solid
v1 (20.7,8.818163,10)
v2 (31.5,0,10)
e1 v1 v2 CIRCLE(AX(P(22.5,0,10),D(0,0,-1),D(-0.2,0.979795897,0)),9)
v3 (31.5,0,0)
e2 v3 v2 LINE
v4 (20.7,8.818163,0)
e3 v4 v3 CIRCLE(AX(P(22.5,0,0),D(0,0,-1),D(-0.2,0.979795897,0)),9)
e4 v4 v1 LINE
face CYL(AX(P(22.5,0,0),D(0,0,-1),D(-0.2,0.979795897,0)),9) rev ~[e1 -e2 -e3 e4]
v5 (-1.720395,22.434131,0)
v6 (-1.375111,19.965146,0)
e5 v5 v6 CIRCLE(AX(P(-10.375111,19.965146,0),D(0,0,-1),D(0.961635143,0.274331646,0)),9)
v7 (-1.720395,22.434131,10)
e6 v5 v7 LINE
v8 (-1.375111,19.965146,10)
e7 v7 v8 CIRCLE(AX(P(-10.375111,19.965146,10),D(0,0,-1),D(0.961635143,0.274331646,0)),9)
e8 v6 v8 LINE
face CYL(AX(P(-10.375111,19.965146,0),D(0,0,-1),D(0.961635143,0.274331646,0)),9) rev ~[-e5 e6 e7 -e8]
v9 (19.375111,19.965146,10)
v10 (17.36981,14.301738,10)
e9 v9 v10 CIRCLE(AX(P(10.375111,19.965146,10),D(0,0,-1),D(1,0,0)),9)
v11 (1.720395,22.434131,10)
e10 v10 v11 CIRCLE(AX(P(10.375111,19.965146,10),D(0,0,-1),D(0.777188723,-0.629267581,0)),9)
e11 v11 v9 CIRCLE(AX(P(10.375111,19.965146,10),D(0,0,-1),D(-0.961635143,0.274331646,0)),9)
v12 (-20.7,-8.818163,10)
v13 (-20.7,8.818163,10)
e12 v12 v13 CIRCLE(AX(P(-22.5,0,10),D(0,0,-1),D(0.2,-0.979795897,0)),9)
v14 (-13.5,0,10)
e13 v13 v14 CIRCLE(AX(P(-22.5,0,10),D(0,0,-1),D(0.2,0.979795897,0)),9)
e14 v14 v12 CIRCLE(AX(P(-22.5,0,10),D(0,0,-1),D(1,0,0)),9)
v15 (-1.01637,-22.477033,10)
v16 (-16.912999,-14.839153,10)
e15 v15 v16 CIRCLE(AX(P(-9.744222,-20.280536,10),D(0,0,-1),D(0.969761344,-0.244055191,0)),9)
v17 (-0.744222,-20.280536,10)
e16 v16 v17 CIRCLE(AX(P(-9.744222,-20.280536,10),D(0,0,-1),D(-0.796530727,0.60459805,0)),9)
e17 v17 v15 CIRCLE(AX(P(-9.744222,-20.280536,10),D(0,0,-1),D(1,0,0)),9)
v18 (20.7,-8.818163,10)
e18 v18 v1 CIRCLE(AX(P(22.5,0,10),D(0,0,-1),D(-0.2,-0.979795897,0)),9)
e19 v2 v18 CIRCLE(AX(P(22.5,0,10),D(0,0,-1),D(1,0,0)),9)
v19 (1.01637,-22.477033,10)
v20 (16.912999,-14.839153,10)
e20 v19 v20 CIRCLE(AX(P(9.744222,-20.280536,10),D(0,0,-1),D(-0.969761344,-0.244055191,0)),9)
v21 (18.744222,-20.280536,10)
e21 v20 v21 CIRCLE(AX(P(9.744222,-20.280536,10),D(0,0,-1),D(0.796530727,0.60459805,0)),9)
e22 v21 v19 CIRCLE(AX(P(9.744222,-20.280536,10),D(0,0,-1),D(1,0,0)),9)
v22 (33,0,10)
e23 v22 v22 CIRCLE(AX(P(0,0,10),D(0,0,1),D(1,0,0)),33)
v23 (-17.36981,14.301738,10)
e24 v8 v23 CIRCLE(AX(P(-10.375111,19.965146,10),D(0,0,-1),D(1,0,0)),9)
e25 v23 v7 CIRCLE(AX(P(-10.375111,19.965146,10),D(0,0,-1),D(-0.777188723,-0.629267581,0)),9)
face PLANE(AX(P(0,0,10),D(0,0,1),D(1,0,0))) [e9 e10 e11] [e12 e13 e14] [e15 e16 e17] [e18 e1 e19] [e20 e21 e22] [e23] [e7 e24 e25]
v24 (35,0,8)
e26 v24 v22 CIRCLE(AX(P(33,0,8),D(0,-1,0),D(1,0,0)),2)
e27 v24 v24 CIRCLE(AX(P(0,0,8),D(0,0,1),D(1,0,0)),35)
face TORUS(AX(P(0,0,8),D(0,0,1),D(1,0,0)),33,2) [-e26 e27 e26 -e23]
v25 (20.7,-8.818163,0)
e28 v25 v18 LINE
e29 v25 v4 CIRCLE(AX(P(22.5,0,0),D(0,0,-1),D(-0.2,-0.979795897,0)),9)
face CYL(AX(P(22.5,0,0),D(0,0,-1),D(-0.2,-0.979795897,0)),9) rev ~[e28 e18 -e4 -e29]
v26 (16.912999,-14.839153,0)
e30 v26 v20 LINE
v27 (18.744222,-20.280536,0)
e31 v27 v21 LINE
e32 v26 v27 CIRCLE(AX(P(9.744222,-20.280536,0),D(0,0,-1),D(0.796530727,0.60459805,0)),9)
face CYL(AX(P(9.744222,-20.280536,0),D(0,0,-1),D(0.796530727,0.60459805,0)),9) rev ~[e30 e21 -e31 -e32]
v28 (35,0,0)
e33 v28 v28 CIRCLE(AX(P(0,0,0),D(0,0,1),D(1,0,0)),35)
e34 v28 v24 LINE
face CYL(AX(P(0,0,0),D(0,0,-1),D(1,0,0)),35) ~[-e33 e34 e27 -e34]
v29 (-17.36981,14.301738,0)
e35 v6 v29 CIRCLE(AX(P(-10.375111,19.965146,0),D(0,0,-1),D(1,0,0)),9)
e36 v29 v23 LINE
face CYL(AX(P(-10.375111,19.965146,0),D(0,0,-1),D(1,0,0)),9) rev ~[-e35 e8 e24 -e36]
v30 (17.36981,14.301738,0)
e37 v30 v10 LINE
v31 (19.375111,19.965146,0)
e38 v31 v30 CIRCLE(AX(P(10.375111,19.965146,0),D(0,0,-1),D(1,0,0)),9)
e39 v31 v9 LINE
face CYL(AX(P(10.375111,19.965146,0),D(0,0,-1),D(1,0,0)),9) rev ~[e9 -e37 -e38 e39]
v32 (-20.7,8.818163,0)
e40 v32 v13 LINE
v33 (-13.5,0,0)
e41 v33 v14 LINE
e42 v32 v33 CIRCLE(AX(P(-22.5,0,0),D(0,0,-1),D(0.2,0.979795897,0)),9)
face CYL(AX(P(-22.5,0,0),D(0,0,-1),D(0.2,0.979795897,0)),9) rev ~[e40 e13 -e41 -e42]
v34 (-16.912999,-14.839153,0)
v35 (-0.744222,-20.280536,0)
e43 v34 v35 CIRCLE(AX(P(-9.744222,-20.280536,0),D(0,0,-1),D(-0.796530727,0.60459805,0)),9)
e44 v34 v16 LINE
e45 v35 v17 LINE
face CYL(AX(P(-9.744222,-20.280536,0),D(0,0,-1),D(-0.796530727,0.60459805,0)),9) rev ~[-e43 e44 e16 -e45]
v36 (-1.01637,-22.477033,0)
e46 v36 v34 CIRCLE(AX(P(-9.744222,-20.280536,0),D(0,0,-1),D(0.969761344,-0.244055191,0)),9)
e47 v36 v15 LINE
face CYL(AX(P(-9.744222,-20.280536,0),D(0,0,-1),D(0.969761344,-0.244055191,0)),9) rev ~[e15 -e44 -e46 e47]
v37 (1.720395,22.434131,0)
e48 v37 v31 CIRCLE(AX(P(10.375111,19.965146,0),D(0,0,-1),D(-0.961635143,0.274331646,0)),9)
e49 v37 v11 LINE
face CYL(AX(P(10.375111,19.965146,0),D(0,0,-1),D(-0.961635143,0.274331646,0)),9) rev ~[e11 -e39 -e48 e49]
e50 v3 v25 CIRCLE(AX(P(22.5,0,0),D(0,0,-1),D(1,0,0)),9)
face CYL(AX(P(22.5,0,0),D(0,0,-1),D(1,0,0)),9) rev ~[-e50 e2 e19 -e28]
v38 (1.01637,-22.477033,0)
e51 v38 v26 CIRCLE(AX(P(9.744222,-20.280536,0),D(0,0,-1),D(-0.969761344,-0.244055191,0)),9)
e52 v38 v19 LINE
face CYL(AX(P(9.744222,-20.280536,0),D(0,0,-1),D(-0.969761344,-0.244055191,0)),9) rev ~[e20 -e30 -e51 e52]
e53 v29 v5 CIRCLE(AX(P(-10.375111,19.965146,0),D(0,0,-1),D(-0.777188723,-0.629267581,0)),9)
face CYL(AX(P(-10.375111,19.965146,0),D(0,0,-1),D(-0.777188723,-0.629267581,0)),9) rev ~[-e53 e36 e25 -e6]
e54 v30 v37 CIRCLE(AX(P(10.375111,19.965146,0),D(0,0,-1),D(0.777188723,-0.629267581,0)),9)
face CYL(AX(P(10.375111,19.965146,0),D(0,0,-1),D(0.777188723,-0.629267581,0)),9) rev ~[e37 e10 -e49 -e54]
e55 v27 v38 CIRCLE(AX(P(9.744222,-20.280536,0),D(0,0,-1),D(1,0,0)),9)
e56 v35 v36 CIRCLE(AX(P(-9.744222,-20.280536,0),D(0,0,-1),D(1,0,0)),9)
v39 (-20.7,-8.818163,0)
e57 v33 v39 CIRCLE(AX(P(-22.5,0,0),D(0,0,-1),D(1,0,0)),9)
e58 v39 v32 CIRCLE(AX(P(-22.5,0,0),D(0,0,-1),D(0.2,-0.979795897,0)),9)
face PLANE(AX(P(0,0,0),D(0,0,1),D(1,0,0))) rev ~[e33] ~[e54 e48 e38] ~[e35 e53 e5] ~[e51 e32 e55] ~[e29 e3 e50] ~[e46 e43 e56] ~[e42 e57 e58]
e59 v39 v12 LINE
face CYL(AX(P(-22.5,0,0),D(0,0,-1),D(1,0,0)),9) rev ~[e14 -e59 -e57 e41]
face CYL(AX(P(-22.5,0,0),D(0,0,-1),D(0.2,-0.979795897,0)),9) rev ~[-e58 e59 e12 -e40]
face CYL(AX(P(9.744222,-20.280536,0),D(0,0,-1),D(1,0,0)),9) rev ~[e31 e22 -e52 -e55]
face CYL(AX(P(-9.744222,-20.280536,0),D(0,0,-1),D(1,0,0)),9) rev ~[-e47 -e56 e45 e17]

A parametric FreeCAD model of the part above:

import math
import FreeCAD as App
import Part
import Sketcher
Q = App.Units.Quantity


def edges_at(feature, points):
    """Names of the edges that pass closest to the given points."""
    edges = feature.Shape.Edges
    near = lambda p: min(range(len(edges)), key=lambda i: edges[i].distToShape(Part.Vertex(*p))[0])
    return sorted({f"Edge{near(p) + 1}" for p in points})

doc = App.newDocument("Part")
params = doc.addObject("Spreadsheet::Sheet", "Params")
for row, (alias, value) in enumerate([
    ("sketch1_diameter", "70 mm"),
    ("sketch1_radius", "9 mm"),
    ("pad1_length", "10 mm"),
    ("fillet_radius", "2 mm"),
], start=1):
    params.set(f"A{row}", alias)
    params.set(f"B{row}", "=" + value)
    params.setAlias(f"B{row}", alias)

body = doc.addObject("PartDesign::Body", "Body")

# Sketch on XY plane
sketch1 = body.newObject("Sketcher::SketchObject", "Sketch")
sketch1.AttachmentSupport = (doc.getObject("XY_Plane"), [""])
sketch1.MapMode = "FlatFace"
sketch1.addGeometry(Part.Circle(App.Vector(0, 0, 0), App.Vector(0, 0, 1), 35), False)
sketch1.addGeometry(Part.ArcOfCircle(Part.Circle(App.Vector(10.4, 20, 0), App.Vector(0, 0, 1), 9), math.radians(-39), math.radians(0)), False)
sketch1.addGeometry(Part.ArcOfCircle(Part.Circle(App.Vector(10.4, 20, 0), App.Vector(0, 0, 1), 9), math.radians(164), math.radians(321)), False)
sketch1.addGeometry(Part.ArcOfCircle(Part.Circle(App.Vector(10.4, 20, 0), App.Vector(0, 0, 1), 9), math.radians(0), math.radians(164)), False)
sketch1.addGeometry(Part.ArcOfCircle(Part.Circle(App.Vector(-10.4, 20, 0), App.Vector(0, 0, 1), 9), math.radians(16), math.radians(219)), False)
sketch1.addGeometry(Part.ArcOfCircle(Part.Circle(App.Vector(-10.4, 20, 0), App.Vector(0, 0, 1), 9), math.radians(0), math.radians(15.92)), False)
sketch1.addGeometry(Part.ArcOfCircle(Part.Circle(App.Vector(-10.4, 20, 0), App.Vector(0, 0, 1), 9), math.radians(-141), math.radians(0)), False)
sketch1.addGeometry(Part.ArcOfCircle(Part.Circle(App.Vector(-22.5, 0, 0), App.Vector(0, 0, 1), 9), math.radians(78), math.radians(282)), False)
sketch1.addGeometry(Part.ArcOfCircle(Part.Circle(App.Vector(-22.5, 0, 0), App.Vector(0, 0, 1), 9), math.radians(0), math.radians(78)), False)
sketch1.addGeometry(Part.ArcOfCircle(Part.Circle(App.Vector(-22.5, 0, 0), App.Vector(0, 0, 1), 9), math.radians(-78), math.radians(0)), False)
sketch1.addGeometry(Part.ArcOfCircle(Part.Circle(App.Vector(-9.7, -20.3, 0), App.Vector(0, 0, 1), 9), math.radians(143), math.radians(346)), False)
sketch1.addGeometry(Part.ArcOfCircle(Part.Circle(App.Vector(-9.7, -20.3, 0), App.Vector(0, 0, 1), 9), math.radians(0), math.radians(143)), False)
sketch1.addGeometry(Part.ArcOfCircle(Part.Circle(App.Vector(-9.7, -20.3, 0), App.Vector(0, 0, 1), 9), math.radians(-14.13), math.radians(0)), False)
sketch1.addGeometry(Part.ArcOfCircle(Part.Circle(App.Vector(9.7, -20.3, 0), App.Vector(0, 0, 1), 9), math.radians(-166), math.radians(0)), False)
sketch1.addGeometry(Part.ArcOfCircle(Part.Circle(App.Vector(9.7, -20.3, 0), App.Vector(0, 0, 1), 9), math.radians(37), math.radians(194)), False)
sketch1.addGeometry(Part.ArcOfCircle(Part.Circle(App.Vector(9.7, -20.3, 0), App.Vector(0, 0, 1), 9), math.radians(0), math.radians(37)), False)
sketch1.addGeometry(Part.ArcOfCircle(Part.Circle(App.Vector(22.5, 0, 0), App.Vector(0, 0, 1), 9), math.radians(-102), math.radians(0)), False)
sketch1.addGeometry(Part.ArcOfCircle(Part.Circle(App.Vector(22.5, 0, 0), App.Vector(0, 0, 1), 9), math.radians(102), math.radians(258)), False)
sketch1.addGeometry(Part.ArcOfCircle(Part.Circle(App.Vector(22.5, 0, 0), App.Vector(0, 0, 1), 9), math.radians(0), math.radians(102)), False)
sketch1.addConstraint(Sketcher.Constraint("Tangent", 1, 1, 2, 2))
sketch1.addConstraint(Sketcher.Constraint("Tangent", 2, 1, 3, 2))
sketch1.addConstraint(Sketcher.Constraint("Tangent", 3, 1, 1, 2))
sketch1.addConstraint(Sketcher.Constraint("Tangent", 4, 1, 5, 2))
sketch1.addConstraint(Sketcher.Constraint("Tangent", 5, 1, 6, 2))
sketch1.addConstraint(Sketcher.Constraint("Tangent", 6, 1, 4, 2))
sketch1.addConstraint(Sketcher.Constraint("Tangent", 7, 1, 8, 2))
sketch1.addConstraint(Sketcher.Constraint("Tangent", 8, 1, 9, 2))
sketch1.addConstraint(Sketcher.Constraint("Tangent", 9, 1, 7, 2))
sketch1.addConstraint(Sketcher.Constraint("Tangent", 10, 1, 11, 2))
sketch1.addConstraint(Sketcher.Constraint("Tangent", 11, 1, 12, 2))
sketch1.addConstraint(Sketcher.Constraint("Tangent", 12, 1, 10, 2))
sketch1.addConstraint(Sketcher.Constraint("Tangent", 13, 1, 14, 2))
sketch1.addConstraint(Sketcher.Constraint("Tangent", 14, 1, 15, 2))
sketch1.addConstraint(Sketcher.Constraint("Tangent", 15, 1, 13, 2))
sketch1.addConstraint(Sketcher.Constraint("Tangent", 16, 1, 17, 2))
sketch1.addConstraint(Sketcher.Constraint("Tangent", 17, 1, 18, 2))
sketch1.addConstraint(Sketcher.Constraint("Tangent", 18, 1, 16, 2))
sketch1.addConstraint(Sketcher.Constraint("Coincident", 0, 3, -1, 1))
sketch1.addConstraint(Sketcher.Constraint("Equal", 3, 4))
sketch1.addConstraint(Sketcher.Constraint("Equal", 6, 7))
sketch1.addConstraint(Sketcher.Constraint("Equal", 9, 10))
sketch1.addConstraint(Sketcher.Constraint("Equal", 12, 13))
sketch1.addConstraint(Sketcher.Constraint("Equal", 15, 16))
sketch1.addConstraint(Sketcher.Constraint("Symmetric", 7, 3, 16, 3, -1, 1))
sketch1.addConstraint(Sketcher.Constraint("Symmetric", 1, 3, 4, 3, -2))
sketch1.addConstraint(Sketcher.Constraint("Symmetric", 10, 3, 13, 3, -2))
sketch1.addConstraint(Sketcher.Constraint("Symmetric", 9, 1, 16, 1, -2))
sketch1.addConstraint(Sketcher.Constraint("PointOnObject", 8, 1, -1))
sketch1.addConstraint(Sketcher.Constraint("PointOnObject", 18, 1, -1))
sketch1.addConstraint(Sketcher.Constraint("Horizontal", 6, 3, 3, 1))
sketch1.addConstraint(Sketcher.Constraint("Horizontal", 2, 1, 4, 1))
sketch1.addConstraint(Sketcher.Constraint("Horizontal", 3, 1, 5, 1))
sketch1.addConstraint(Sketcher.Constraint("Horizontal", 1, 1, 6, 1))
sketch1.addConstraint(Sketcher.Constraint("Horizontal", 15, 3, 11, 1))
sketch1.addConstraint(Sketcher.Constraint("Horizontal", 12, 1, 13, 1))
sketch1.addConstraint(Sketcher.Constraint("Horizontal", 10, 1, 14, 1))
sketch1.addConstraint(Sketcher.Constraint("Horizontal", 11, 1, 15, 1))
sketch1.addConstraint(Sketcher.Constraint("Horizontal", 7, 1, 17, 1))
sketch1.addConstraint(Sketcher.Constraint("Vertical", 7, 1, 9, 1))
sketch1.addConstraint(Sketcher.Constraint("Diameter", 0, Q("70 mm")))
sketch1.addConstraint(Sketcher.Constraint("Radius", 1, Q("9 mm")))
sketch1.addConstraint(Sketcher.Constraint("DistanceX", 7, 3, -1, 1, Q("22.5 mm")))
sketch1.addConstraint(Sketcher.Constraint("DistanceX", 7, 1, -1, 1, Q("20.7 mm")))
sketch1.addConstraint(Sketcher.Constraint("DistanceX", 10, 1, -1, 1, Q("16.912999 mm")))
sketch1.addConstraint(Sketcher.Constraint("DistanceX", 2, 3, 1, 1, Q("6.994699 mm")))
sketch1.addConstraint(Sketcher.Constraint("DistanceX", -1, 1, 1, 3, Q("10.375111 mm")))
sketch1.addConstraint(Sketcher.Constraint("DistanceY", -1, 1, 1, 1, Q("14.301738 mm")))
sketch1.addConstraint(Sketcher.Constraint("DistanceY", -1, 1, 2, 1, Q("22.434131 mm")))
sketch1.addConstraint(Sketcher.Constraint("DistanceX", 12, 1, -1, 1, Q("1.01637 mm")))
sketch1.addConstraint(Sketcher.Constraint("DistanceX", 4, 3, 10, 3, Q("0.630889 mm")))
sketch1.addConstraint(Sketcher.Constraint("DistanceY", 10, 1, 9, 1, Q("6.02099 mm")))
sketch1.setExpression("Constraints[40]", "Params.sketch1_diameter")
sketch1.setExpression("Constraints[41]", "Params.sketch1_radius")
pad1 = body.newObject("PartDesign::Pad", "Pad")
pad1.Profile = sketch1
pad1.setExpression("Length", "Params.pad1_length")
doc.recompute()

fillet = body.newObject("PartDesign::Fillet", "Fillet")
fillet.Base = (pad1, edges_at(pad1, [(-35, 0, 10)]))
fillet.setExpression("Radius", "Params.fillet_radius")

doc.recompute()
